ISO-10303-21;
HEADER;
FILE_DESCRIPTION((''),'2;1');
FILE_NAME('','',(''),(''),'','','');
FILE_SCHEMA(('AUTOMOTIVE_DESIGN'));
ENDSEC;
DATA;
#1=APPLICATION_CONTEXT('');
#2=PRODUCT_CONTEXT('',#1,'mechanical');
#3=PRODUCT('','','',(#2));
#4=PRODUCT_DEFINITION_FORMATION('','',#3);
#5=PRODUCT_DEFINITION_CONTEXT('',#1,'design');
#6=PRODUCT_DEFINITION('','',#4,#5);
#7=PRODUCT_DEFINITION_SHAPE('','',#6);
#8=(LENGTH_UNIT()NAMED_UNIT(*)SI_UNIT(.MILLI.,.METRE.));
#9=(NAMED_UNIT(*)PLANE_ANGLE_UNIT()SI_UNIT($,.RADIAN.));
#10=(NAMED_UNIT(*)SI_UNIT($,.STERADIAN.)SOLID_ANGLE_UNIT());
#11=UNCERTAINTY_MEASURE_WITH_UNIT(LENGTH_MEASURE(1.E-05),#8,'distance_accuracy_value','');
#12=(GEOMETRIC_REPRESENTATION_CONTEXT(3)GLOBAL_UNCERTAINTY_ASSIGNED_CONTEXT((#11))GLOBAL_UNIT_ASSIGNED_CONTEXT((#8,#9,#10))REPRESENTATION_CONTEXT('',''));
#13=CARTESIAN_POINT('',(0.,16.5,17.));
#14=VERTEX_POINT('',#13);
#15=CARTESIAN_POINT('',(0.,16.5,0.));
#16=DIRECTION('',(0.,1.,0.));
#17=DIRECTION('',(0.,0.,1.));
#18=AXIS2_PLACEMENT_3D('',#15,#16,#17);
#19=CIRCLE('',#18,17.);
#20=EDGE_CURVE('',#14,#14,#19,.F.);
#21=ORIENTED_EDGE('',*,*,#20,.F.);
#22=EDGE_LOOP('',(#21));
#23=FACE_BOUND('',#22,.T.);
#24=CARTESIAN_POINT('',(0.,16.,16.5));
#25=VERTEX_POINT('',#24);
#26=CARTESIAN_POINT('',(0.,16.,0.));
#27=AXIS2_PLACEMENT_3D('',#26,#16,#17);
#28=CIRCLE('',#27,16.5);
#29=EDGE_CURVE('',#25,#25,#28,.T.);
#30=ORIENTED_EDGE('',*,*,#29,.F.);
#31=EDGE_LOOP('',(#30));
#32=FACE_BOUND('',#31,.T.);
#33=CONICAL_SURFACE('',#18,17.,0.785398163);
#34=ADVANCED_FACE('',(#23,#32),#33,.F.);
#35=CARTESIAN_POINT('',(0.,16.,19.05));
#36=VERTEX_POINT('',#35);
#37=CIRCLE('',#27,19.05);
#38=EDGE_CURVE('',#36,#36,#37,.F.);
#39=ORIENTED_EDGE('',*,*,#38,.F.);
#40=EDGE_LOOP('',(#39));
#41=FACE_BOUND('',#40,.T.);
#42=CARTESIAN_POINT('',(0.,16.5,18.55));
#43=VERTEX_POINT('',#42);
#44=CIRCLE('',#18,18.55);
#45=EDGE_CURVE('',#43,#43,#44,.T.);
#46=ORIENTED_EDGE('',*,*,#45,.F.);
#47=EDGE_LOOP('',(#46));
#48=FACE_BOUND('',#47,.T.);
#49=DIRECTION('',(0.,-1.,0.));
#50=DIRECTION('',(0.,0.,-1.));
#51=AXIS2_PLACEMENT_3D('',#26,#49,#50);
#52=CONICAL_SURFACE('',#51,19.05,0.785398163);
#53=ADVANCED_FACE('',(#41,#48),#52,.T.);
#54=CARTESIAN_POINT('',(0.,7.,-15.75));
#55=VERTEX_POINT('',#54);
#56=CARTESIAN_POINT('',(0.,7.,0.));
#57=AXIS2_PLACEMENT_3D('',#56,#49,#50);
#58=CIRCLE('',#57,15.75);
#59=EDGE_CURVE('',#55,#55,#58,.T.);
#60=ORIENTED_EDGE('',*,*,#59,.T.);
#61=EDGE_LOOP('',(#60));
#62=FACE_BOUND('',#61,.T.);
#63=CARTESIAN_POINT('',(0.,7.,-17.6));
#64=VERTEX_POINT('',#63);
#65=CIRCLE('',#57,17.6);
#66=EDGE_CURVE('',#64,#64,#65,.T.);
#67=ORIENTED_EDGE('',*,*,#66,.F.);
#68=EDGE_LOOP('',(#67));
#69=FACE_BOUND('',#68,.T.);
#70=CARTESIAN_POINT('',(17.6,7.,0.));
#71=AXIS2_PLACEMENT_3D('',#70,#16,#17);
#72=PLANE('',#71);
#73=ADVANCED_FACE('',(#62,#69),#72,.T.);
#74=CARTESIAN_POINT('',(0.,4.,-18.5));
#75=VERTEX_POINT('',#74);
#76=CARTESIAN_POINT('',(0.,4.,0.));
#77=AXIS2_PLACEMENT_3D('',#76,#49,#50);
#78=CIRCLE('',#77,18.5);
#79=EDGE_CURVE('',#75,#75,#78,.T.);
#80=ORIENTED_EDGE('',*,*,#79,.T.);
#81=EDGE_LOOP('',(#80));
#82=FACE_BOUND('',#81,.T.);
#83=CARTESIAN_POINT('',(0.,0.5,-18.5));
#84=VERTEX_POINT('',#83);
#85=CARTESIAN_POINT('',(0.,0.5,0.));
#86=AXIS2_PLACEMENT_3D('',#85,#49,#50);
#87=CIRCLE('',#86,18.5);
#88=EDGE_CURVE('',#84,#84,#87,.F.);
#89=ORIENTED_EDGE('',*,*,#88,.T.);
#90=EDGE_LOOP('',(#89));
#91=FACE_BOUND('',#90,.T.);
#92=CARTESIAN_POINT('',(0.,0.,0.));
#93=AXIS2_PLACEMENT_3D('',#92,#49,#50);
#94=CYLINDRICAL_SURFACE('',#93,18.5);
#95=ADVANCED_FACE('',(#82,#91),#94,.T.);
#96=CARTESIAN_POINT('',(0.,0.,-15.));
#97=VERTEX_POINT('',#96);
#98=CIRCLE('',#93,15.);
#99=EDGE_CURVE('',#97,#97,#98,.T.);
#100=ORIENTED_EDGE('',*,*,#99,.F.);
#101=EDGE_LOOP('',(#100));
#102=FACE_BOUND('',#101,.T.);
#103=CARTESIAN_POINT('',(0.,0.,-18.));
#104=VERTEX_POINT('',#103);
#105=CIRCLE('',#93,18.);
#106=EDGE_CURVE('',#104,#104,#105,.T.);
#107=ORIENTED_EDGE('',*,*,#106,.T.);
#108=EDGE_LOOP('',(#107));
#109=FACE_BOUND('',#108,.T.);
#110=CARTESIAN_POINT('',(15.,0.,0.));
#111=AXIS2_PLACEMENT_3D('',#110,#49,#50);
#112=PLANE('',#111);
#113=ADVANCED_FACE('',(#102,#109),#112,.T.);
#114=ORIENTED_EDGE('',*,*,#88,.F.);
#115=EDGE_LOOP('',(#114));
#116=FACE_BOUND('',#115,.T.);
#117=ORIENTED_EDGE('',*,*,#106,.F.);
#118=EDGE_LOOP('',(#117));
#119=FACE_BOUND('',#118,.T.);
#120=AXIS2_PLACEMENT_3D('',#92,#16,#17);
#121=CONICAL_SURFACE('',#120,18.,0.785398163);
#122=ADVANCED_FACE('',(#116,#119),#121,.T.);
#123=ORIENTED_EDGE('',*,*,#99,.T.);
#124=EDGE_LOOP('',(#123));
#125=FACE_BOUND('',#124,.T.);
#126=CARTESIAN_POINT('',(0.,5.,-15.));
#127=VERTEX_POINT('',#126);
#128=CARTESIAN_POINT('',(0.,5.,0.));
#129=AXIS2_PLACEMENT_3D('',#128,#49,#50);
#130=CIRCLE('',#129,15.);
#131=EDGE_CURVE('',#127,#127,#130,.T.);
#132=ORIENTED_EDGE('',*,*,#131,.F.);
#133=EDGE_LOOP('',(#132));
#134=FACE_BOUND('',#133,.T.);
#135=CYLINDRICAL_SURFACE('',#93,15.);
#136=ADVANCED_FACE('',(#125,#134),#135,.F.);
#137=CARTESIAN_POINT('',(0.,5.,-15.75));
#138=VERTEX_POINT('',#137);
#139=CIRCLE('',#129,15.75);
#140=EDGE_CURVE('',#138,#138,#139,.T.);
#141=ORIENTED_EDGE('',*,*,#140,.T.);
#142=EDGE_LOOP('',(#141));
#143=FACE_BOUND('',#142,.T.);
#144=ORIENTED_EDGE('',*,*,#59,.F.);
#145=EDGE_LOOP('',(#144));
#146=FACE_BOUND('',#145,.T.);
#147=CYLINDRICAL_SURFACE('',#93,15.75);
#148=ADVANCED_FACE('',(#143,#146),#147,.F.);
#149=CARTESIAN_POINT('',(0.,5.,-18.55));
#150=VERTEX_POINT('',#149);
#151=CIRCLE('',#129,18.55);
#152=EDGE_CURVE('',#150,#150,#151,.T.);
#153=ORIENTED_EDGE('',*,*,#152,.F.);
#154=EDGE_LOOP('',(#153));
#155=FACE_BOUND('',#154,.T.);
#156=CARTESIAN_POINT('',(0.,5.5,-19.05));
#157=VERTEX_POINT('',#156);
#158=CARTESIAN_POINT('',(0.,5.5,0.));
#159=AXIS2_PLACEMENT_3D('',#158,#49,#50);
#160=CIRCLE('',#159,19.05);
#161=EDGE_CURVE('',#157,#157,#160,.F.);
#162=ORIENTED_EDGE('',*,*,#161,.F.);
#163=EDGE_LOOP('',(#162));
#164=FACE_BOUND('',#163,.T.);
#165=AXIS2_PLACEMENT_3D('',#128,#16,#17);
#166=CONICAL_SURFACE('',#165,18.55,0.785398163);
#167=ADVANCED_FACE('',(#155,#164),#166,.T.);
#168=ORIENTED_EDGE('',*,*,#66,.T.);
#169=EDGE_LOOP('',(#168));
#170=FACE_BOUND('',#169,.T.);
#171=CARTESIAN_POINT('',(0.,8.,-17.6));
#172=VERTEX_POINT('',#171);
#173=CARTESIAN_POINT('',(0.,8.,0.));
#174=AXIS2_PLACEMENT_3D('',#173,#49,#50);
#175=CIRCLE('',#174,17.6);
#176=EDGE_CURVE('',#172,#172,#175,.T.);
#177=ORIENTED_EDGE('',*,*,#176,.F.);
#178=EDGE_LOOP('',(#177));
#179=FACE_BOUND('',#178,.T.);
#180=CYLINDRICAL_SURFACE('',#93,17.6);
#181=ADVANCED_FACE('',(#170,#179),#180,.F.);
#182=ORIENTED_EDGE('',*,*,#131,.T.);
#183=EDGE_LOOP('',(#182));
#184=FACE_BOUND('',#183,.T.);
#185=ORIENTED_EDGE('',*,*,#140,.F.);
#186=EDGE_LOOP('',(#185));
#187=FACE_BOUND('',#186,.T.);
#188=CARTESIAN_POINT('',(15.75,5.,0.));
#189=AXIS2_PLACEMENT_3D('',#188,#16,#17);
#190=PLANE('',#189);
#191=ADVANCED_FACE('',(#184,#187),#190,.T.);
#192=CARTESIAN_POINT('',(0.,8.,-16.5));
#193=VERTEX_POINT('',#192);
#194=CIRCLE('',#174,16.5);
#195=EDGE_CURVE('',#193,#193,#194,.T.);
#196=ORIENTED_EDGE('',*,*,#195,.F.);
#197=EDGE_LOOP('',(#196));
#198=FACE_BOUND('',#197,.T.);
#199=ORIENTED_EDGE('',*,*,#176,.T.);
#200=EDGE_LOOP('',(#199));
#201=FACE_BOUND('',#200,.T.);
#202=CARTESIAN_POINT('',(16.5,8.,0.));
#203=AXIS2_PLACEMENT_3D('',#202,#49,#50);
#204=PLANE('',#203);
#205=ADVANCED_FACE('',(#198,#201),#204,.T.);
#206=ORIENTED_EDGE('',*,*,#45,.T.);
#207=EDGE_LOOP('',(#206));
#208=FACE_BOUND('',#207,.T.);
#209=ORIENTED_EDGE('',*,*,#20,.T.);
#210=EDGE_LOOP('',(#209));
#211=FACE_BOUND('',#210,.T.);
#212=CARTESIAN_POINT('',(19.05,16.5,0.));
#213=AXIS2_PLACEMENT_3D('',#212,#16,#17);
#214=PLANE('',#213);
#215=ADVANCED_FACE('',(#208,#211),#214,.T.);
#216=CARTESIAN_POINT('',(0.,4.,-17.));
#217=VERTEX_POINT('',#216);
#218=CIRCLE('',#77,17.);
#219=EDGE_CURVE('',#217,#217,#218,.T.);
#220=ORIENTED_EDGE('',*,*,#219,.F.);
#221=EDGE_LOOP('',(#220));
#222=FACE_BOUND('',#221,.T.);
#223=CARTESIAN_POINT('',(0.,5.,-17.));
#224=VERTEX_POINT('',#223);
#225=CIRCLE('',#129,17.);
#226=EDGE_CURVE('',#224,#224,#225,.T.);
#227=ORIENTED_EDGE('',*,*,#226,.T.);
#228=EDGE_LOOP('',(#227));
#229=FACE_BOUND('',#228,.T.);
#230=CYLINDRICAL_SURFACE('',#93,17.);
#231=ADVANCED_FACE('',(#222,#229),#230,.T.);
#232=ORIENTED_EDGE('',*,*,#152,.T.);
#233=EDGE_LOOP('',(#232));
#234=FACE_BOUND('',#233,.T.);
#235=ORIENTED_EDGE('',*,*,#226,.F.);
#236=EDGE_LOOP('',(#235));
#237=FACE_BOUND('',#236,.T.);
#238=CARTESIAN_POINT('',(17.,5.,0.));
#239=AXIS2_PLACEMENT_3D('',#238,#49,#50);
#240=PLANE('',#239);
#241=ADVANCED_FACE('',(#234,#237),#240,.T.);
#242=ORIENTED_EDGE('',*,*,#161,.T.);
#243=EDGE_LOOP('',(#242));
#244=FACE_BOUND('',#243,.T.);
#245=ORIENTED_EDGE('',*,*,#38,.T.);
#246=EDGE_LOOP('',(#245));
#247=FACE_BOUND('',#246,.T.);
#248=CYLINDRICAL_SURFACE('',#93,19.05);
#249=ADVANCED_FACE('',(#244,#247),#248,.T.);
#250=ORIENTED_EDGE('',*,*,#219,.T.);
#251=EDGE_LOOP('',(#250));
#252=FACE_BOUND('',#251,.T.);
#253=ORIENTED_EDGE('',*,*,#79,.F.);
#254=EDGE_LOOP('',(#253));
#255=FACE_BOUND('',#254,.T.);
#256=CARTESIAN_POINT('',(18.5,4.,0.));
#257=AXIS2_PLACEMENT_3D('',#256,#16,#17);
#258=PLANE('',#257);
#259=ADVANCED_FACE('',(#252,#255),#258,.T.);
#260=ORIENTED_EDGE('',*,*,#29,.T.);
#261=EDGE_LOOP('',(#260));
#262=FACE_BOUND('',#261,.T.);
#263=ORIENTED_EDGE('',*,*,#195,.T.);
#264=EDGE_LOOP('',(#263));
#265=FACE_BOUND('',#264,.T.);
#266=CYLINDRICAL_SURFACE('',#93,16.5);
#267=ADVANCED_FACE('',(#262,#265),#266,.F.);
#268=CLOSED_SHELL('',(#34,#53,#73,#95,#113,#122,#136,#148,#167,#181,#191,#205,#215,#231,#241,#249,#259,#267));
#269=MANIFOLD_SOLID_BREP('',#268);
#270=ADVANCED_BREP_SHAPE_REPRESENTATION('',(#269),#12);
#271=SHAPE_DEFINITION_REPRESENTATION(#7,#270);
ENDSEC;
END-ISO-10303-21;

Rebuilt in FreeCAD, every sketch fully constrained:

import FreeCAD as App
import Part
import Sketcher
Q = App.Units.Quantity


def edges_at(feature, points):
    """Names of the edges that pass closest to the given points."""
    edges = feature.Shape.Edges
    near = lambda p: min(range(len(edges)), key=lambda i: edges[i].distToShape(Part.Vertex(*p))[0])
    return sorted({f"Edge{near(p) + 1}" for p in points})

doc = App.newDocument("Part")
body = doc.addObject("PartDesign::Body", "Body")

# Sketch on XY plane
sketch1 = body.newObject("Sketcher::SketchObject", "Sketch")
sketch1.AttachmentSupport = (doc.getObject("XY_Plane"), [""])
sketch1.MapMode = "FlatFace"
sketch1.addGeometry(Part.LineSegment(App.Vector(15, 0, 0), App.Vector(18.5, 0, 0)), False)
sketch1.addGeometry(Part.LineSegment(App.Vector(18.5, 0, 0), App.Vector(18.5, 4, 0)), False)
sketch1.addGeometry(Part.LineSegment(App.Vector(18.5, 4, 0), App.Vector(17, 4, 0)), False)
sketch1.addGeometry(Part.LineSegment(App.Vector(17, 4, 0), App.Vector(17, 5, 0)), False)
sketch1.addGeometry(Part.LineSegment(App.Vector(17, 5, 0), App.Vector(19.1, 5, 0)), False)
sketch1.addGeometry(Part.LineSegment(App.Vector(19.1, 5, 0), App.Vector(19.1, 16.5, 0)), False)
sketch1.addGeometry(Part.LineSegment(App.Vector(19.1, 16.5, 0), App.Vector(16.5, 16.5, 0)), False)
sketch1.addGeometry(Part.LineSegment(App.Vector(16.5, 16.5, 0), App.Vector(16.5, 8, 0)), False)
sketch1.addGeometry(Part.LineSegment(App.Vector(16.5, 8, 0), App.Vector(17.6, 8, 0)), False)
sketch1.addGeometry(Part.LineSegment(App.Vector(17.6, 8, 0), App.Vector(17.6, 7, 0)), False)
sketch1.addGeometry(Part.LineSegment(App.Vector(17.6, 7, 0), App.Vector(15.8, 7, 0)), False)
sketch1.addGeometry(Part.LineSegment(App.Vector(15.8, 7, 0), App.Vector(15.8, 5, 0)), False)
sketch1.addGeometry(Part.LineSegment(App.Vector(15.8, 5, 0), App.Vector(15, 5, 0)), False)
sketch1.addGeometry(Part.LineSegment(App.Vector(15, 5, 0), App.Vector(15, 0, 0)), False)
sketch1.addConstraint(Sketcher.Constraint("Coincident", 0, 2, 1, 1))
sketch1.addConstraint(Sketcher.Constraint("Coincident", 1, 2, 2, 1))
sketch1.addConstraint(Sketcher.Constraint("Coincident", 2, 2, 3, 1))
sketch1.addConstraint(Sketcher.Constraint("Coincident", 3, 2, 4, 1))
sketch1.addConstraint(Sketcher.Constraint("Coincident", 4, 2, 5, 1))
sketch1.addConstraint(Sketcher.Constraint("Coincident", 5, 2, 6, 1))
sketch1.addConstraint(Sketcher.Constraint("Coincident", 6, 2, 7, 1))
sketch1.addConstraint(Sketcher.Constraint("Coincident", 7, 2, 8, 1))
sketch1.addConstraint(Sketcher.Constraint("Coincident", 8, 2, 9, 1))
sketch1.addConstraint(Sketcher.Constraint("Coincident", 9, 2, 10, 1))
sketch1.addConstraint(Sketcher.Constraint("Coincident", 10, 2, 11, 1))
sketch1.addConstraint(Sketcher.Constraint("Coincident", 11, 2, 12, 1))
sketch1.addConstraint(Sketcher.Constraint("Coincident", 12, 2, 13, 1))
sketch1.addConstraint(Sketcher.Constraint("Coincident", 13, 2, 0, 1))
sketch1.addConstraint(Sketcher.Constraint("Horizontal", 0))
sketch1.addConstraint(Sketcher.Constraint("Vertical", 1))
sketch1.addConstraint(Sketcher.Constraint("Horizontal", 2))
sketch1.addConstraint(Sketcher.Constraint("Vertical", 3))
sketch1.addConstraint(Sketcher.Constraint("Horizontal", 4))
sketch1.addConstraint(Sketcher.Constraint("Vertical", 5))
sketch1.addConstraint(Sketcher.Constraint("Horizontal", 6))
sketch1.addConstraint(Sketcher.Constraint("Vertical", 7))
sketch1.addConstraint(Sketcher.Constraint("Horizontal", 8))
sketch1.addConstraint(Sketcher.Constraint("Vertical", 9))
sketch1.addConstraint(Sketcher.Constraint("Horizontal", 10))
sketch1.addConstraint(Sketcher.Constraint("Vertical", 11))
sketch1.addConstraint(Sketcher.Constraint("Horizontal", 12))
sketch1.addConstraint(Sketcher.Constraint("Vertical", 13))
sketch1.addConstraint(Sketcher.Constraint("PointOnObject", 0, 2, -1))
sketch1.addConstraint(Sketcher.Constraint("Horizontal", 4, 2, 11, 2))
sketch1.addConstraint(Sketcher.Constraint("Equal", 3, 9))
sketch1.addConstraint(Sketcher.Constraint("DistanceY", 1, 1, 1, 2, Q("4 mm")))
sketch1.addConstraint(Sketcher.Constraint("DistanceY", 3, 1, 3, 2, Q("1 mm")))
sketch1.addConstraint(Sketcher.Constraint("DistanceY", 11, 2, 11, 1, Q("2 mm")))
sketch1.addConstraint(Sketcher.Constraint("DistanceX", 0, 1, 0, 2, Q("3.5 mm")))
sketch1.addConstraint(Sketcher.Constraint("DistanceX", 2, 2, 2, 1, Q("1.5 mm")))
sketch1.addConstraint(Sketcher.Constraint("DistanceX", 8, 1, 8, 2, Q("1.1 mm")))
sketch1.addConstraint(Sketcher.Constraint("DistanceY", 5, 1, 5, 2, Q("11.5 mm")))
sketch1.addConstraint(Sketcher.Constraint("DistanceX", -1, 1, 2, 2, Q("17 mm")))
sketch1.addConstraint(Sketcher.Constraint("DistanceX", 6, 2, 1, 2, Q("2 mm")))
sketch1.addConstraint(Sketcher.Constraint("DistanceX", 4, 1, 4, 2, Q("2.05 mm")))
sketch1.addConstraint(Sketcher.Constraint("DistanceX", 10, 2, 10, 1, Q("1.85 mm")))
revolution = body.newObject("PartDesign::Revolution", "Revolution")
revolution.Profile = sketch1
revolution.ReferenceAxis = (sketch1, ["V_Axis"])
revolution.Angle = 360
doc.recompute()

chamfer = body.newObject("PartDesign::Chamfer", "Chamfer")
chamfer.Base = (revolution, edges_at(revolution, [
    (0, 16.5, 16.5),
    (0, 16.5, 19.05),
    (0, 5, 19.05),
    (0, 0, 18.5),
]))
chamfer.Size = 0.5

doc.recompute()
